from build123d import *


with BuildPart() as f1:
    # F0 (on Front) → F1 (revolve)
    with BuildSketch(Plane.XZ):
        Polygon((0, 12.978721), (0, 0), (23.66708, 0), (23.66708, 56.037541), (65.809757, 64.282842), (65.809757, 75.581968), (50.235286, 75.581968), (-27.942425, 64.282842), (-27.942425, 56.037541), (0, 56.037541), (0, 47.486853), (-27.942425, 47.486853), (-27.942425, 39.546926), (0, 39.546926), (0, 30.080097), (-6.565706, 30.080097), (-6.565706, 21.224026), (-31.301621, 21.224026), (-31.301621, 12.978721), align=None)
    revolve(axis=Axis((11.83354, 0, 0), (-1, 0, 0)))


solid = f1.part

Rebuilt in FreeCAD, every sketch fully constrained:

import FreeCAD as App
import Part
import Sketcher

V = App.Vector

doc = App.newDocument("Part")
body = doc.addObject("PartDesign::Body", "Body")

sketch1 = body.newObject("Sketcher::SketchObject", "Sketch")
sketch1.AttachmentSupport = (doc.getObject("XZ_Plane"), [""])
sketch1.MapMode = "FlatFace"
sketch1.addGeometry(Part.LineSegment(V(0, 13, 0), V(0, 0, 0)), False)
sketch1.addGeometry(Part.LineSegment(V(0, 0, 0), V(24, 0, 0)), False)
sketch1.addGeometry(Part.LineSegment(V(24, 0, 0), V(24, 56, 0)), False)
sketch1.addGeometry(Part.LineSegment(V(24, 56, 0), V(66, 64, 0)), False)
sketch1.addGeometry(Part.LineSegment(V(66, 64, 0), V(66, 76, 0)), False)
sketch1.addGeometry(Part.LineSegment(V(66, 76, 0), V(50, 76, 0)), False)
sketch1.addGeometry(Part.LineSegment(V(50, 76, 0), V(-28, 64, 0)), False)
sketch1.addGeometry(Part.LineSegment(V(-28, 64, 0), V(-28, 56, 0)), False)
sketch1.addGeometry(Part.LineSegment(V(-28, 56, 0), V(0, 56, 0)), False)
sketch1.addGeometry(Part.LineSegment(V(0, 56, 0), V(0, 47, 0)), False)
sketch1.addGeometry(Part.LineSegment(V(0, 47, 0), V(-28, 47, 0)), False)
sketch1.addGeometry(Part.LineSegment(V(-28, 47, 0), V(-28, 40, 0)), False)
sketch1.addGeometry(Part.LineSegment(V(-28, 40, 0), V(0, 40, 0)), False)
sketch1.addGeometry(Part.LineSegment(V(0, 40, 0), V(0, 30, 0)), False)
sketch1.addGeometry(Part.LineSegment(V(0, 30, 0), V(-7, 30, 0)), False)
sketch1.addGeometry(Part.LineSegment(V(-7, 30, 0), V(-7, 21, 0)), False)
sketch1.addGeometry(Part.LineSegment(V(-7, 21, 0), V(-31, 21, 0)), False)
sketch1.addGeometry(Part.LineSegment(V(-31, 21, 0), V(-31, 13, 0)), False)
sketch1.addGeometry(Part.LineSegment(V(-31, 13, 0), V(0, 13, 0)), False)
sketch1.addConstraint(Sketcher.Constraint("Coincident", 0, 2, 1, 1))
sketch1.addConstraint(Sketcher.Constraint("Coincident", 1, 2, 2, 1))
sketch1.addConstraint(Sketcher.Constraint("Coincident", 2, 2, 3, 1))
sketch1.addConstraint(Sketcher.Constraint("Coincident", 3, 2, 4, 1))
sketch1.addConstraint(Sketcher.Constraint("Coincident", 4, 2, 5, 1))
sketch1.addConstraint(Sketcher.Constraint("Coincident", 5, 2, 6, 1))
sketch1.addConstraint(Sketcher.Constraint("Coincident", 6, 2, 7, 1))
sketch1.addConstraint(Sketcher.Constraint("Coincident", 7, 2, 8, 1))
sketch1.addConstraint(Sketcher.Constraint("Coincident", 8, 2, 9, 1))
sketch1.addConstraint(Sketcher.Constraint("Coincident", 9, 2, 10, 1))
sketch1.addConstraint(Sketcher.Constraint("Coincident", 10, 2, 11, 1))
sketch1.addConstraint(Sketcher.Constraint("Coincident", 11, 2, 12, 1))
sketch1.addConstraint(Sketcher.Constraint("Coincident", 12, 2, 13, 1))
sketch1.addConstraint(Sketcher.Constraint("Coincident", 13, 2, 14, 1))
sketch1.addConstraint(Sketcher.Constraint("Coincident", 14, 2, 15, 1))
sketch1.addConstraint(Sketcher.Constraint("Coincident", 15, 2, 16, 1))
sketch1.addConstraint(Sketcher.Constraint("Coincident", 16, 2, 17, 1))
sketch1.addConstraint(Sketcher.Constraint("Coincident", 17, 2, 18, 1))
sketch1.addConstraint(Sketcher.Constraint("Coincident", 18, 2, 0, 1))
sketch1.addConstraint(Sketcher.Constraint("Vertical", 0))
sketch1.addConstraint(Sketcher.Constraint("Horizontal", 1))
sketch1.addConstraint(Sketcher.Constraint("Vertical", 2))
sketch1.addConstraint(Sketcher.Constraint("Vertical", 4))
sketch1.addConstraint(Sketcher.Constraint("Horizontal", 5))
sketch1.addConstraint(Sketcher.Constraint("Vertical", 7))
sketch1.addConstraint(Sketcher.Constraint("Horizontal", 8))
sketch1.addConstraint(Sketcher.Constraint("Vertical", 9))
sketch1.addConstraint(Sketcher.Constraint("Horizontal", 10))
sketch1.addConstraint(Sketcher.Constraint("Vertical", 11))
sketch1.addConstraint(Sketcher.Constraint("Horizontal", 12))
sketch1.addConstraint(Sketcher.Constraint("Vertical", 13))
sketch1.addConstraint(Sketcher.Constraint("Horizontal", 14))
sketch1.addConstraint(Sketcher.Constraint("Vertical", 15))
sketch1.addConstraint(Sketcher.Constraint("Horizontal", 16))
sketch1.addConstraint(Sketcher.Constraint("Vertical", 17))
sketch1.addConstraint(Sketcher.Constraint("Horizontal", 18))
sketch1.addConstraint(Sketcher.Constraint("Coincident", 0, 2, -1, 1))
sketch1.addConstraint(Sketcher.Constraint("PointOnObject", 8, 2, -2))
sketch1.addConstraint(Sketcher.Constraint("PointOnObject", 12, 2, -2))
sketch1.addConstraint(Sketcher.Constraint("Horizontal", 3, 2, 6, 2))
sketch1.addConstraint(Sketcher.Constraint("Horizontal", 2, 2, 7, 2))
sketch1.addConstraint(Sketcher.Constraint("Vertical", 7, 2, 10, 2))
sketch1.addConstraint(Sketcher.Constraint("DistanceY", 7, 2, 7, 1, 8.245301))
sketch1.addConstraint(Sketcher.Constraint("DistanceX", 1, 1, 1, 2, 23.66708))
sketch1.addConstraint(Sketcher.Constraint("DistanceX", 5, 2, 5, 1, 15.574471))
sketch1.addConstraint(Sketcher.Constraint("DistanceX", 18, 1, 18, 2, 31.301621))
sketch1.addConstraint(Sketcher.Constraint("DistanceY", 0, 2, 0, 1, 12.978721))
sketch1.addConstraint(Sketcher.Constraint("DistanceY", 2, 1, 2, 2, 56.037541))
sketch1.addConstraint(Sketcher.Constraint("DistanceY", 13, 2, 13, 1, 9.466829))
sketch1.addConstraint(Sketcher.Constraint("DistanceY", 15, 2, 15, 1, 8.856071))
sketch1.addConstraint(Sketcher.Constraint("Distance", 6, 78.990029))
sketch1.addConstraint(Sketcher.Constraint("DistanceX", 8, 1, 8, 2, 27.942425))
sketch1.addConstraint(Sketcher.Constraint("DistanceX", 14, 2, 14, 1, 6.565706))
sketch1.addConstraint(Sketcher.Constraint("DistanceY", 4, 1, 4, 2, 11.299126))
sketch1.addConstraint(Sketcher.Constraint("DistanceY", 9, 2, 9, 1, 8.550688))
sketch1.addConstraint(Sketcher.Constraint("DistanceY", 11, 2, 11, 1, 7.939927))
revolution = body.newObject("PartDesign::Revolution", "Revolution")
revolution.Profile = sketch1
revolution.ReferenceAxis = (sketch1, ["H_Axis"])
revolution.Angle = 360

doc.recompute()
